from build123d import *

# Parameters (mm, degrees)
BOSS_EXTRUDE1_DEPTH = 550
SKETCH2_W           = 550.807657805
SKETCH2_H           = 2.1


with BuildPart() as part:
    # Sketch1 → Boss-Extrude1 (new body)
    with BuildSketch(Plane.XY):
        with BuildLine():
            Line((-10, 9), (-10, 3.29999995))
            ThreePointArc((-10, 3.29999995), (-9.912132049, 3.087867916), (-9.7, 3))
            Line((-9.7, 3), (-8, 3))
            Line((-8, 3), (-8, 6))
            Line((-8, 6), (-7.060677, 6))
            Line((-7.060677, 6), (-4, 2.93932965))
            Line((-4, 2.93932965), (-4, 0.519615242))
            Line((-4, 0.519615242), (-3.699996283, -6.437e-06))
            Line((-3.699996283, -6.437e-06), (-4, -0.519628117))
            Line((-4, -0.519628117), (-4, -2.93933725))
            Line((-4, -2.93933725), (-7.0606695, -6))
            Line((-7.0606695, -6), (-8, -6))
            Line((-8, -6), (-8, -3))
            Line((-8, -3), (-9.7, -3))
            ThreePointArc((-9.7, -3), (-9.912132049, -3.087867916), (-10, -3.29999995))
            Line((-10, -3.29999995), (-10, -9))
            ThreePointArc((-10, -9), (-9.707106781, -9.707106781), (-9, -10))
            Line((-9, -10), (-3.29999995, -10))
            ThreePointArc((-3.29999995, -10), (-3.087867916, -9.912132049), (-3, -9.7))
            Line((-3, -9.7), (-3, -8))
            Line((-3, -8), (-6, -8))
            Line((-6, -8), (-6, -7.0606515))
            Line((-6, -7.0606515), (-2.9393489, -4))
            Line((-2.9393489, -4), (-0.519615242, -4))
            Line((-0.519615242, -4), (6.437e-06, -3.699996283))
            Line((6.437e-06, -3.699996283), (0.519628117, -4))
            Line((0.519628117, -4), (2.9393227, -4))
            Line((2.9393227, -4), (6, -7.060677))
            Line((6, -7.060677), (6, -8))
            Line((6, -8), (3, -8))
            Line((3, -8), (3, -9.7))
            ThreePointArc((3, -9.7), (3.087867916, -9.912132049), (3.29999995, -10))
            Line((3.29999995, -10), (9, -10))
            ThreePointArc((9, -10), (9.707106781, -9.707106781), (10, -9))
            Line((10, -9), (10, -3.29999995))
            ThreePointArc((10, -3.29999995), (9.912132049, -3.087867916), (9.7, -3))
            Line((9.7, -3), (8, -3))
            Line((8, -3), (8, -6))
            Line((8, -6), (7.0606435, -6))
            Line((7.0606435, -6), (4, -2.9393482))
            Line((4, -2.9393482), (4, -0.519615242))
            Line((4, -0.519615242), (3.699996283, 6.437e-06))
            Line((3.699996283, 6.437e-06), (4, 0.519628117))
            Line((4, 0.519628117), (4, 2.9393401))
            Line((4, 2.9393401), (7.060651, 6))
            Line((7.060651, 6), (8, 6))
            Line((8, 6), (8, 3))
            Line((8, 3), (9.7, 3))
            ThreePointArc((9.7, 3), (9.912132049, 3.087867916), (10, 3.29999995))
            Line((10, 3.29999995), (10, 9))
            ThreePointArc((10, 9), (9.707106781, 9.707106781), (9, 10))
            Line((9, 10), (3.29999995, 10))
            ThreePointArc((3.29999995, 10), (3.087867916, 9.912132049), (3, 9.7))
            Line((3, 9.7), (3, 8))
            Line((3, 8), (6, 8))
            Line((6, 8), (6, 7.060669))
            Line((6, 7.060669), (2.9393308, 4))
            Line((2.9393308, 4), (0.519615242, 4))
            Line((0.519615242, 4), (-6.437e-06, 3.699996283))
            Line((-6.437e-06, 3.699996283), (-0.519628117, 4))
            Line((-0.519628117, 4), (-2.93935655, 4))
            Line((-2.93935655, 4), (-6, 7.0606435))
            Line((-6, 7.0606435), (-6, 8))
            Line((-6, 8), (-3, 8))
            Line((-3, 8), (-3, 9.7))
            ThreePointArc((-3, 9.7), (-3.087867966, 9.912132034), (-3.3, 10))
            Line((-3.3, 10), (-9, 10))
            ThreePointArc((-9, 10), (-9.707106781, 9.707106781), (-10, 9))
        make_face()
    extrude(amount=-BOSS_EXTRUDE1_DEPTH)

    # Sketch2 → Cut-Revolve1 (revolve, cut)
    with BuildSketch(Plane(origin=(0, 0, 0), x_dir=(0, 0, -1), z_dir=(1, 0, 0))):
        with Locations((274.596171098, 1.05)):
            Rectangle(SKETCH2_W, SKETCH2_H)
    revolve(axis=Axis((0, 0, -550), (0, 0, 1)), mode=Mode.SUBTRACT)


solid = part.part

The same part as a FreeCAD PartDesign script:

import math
import FreeCAD as App
import Part
import Sketcher

V = App.Vector
Q = App.Units.Quantity

doc = App.newDocument("Part")
body = doc.addObject("PartDesign::Body", "Body")

# Sketch on XY plane
sketch1 = body.newObject("Sketcher::SketchObject", "Sketch")
sketch1.AttachmentSupport = (doc.getObject("XY_Plane"), [""])
sketch1.MapMode = "FlatFace"
sketch1.addGeometry(Part.LineSegment(V(-10, 9, 0), V(-10, 3.3, 0)), False)
sketch1.addGeometry(Part.ArcOfCircle(Part.Circle(V(-9.7, 3.3, 0), V(0, 0, 1), 0.3), math.radians(180), math.radians(270)), False)
sketch1.addGeometry(Part.LineSegment(V(-9.7, 3, 0), V(-8, 3, 0)), False)
sketch1.addGeometry(Part.LineSegment(V(-8, 3, 0), V(-8, 6, 0)), False)
sketch1.addGeometry(Part.LineSegment(V(-8, 6, 0), V(-7.06, 6, 0)), False)
sketch1.addGeometry(Part.LineSegment(V(-7.06, 6, 0), V(-4, 2.94, 0)), False)
sketch1.addGeometry(Part.LineSegment(V(-4, 2.94, 0), V(-4, 0.52, 0)), False)
sketch1.addGeometry(Part.LineSegment(V(-4, 0.52, 0), V(-3.7, 0, 0)), False)
sketch1.addGeometry(Part.LineSegment(V(-3.7, 0, 0), V(-4, -0.52, 0)), False)
sketch1.addGeometry(Part.LineSegment(V(-4, -0.52, 0), V(-4, -2.94, 0)), False)
sketch1.addGeometry(Part.LineSegment(V(-4, -2.94, 0), V(-7.06, -6, 0)), False)
sketch1.addGeometry(Part.LineSegment(V(-7.06, -6, 0), V(-8, -6, 0)), False)
sketch1.addGeometry(Part.LineSegment(V(-8, -6, 0), V(-8, -3, 0)), False)
sketch1.addGeometry(Part.LineSegment(V(-8, -3, 0), V(-9.7, -3, 0)), False)
sketch1.addGeometry(Part.ArcOfCircle(Part.Circle(V(-9.7, -3.3, 0), V(0, 0, 1), 0.3), math.radians(90), math.radians(180)), False)
sketch1.addGeometry(Part.LineSegment(V(-10, -3.3, 0), V(-10, -9, 0)), False)
sketch1.addGeometry(Part.ArcOfCircle(Part.Circle(V(-9, -9, 0), V(0, 0, 1), 1), math.radians(-180), math.radians(-90)), False)
sketch1.addGeometry(Part.LineSegment(V(-9, -10, 0), V(-3.3, -10, 0)), False)
sketch1.addGeometry(Part.ArcOfCircle(Part.Circle(V(-3.3, -9.7, 0), V(0, 0, 1), 0.3), math.radians(-90), math.radians(0)), False)
sketch1.addGeometry(Part.LineSegment(V(-3, -9.7, 0), V(-3, -8, 0)), False)
sketch1.addGeometry(Part.LineSegment(V(-3, -8, 0), V(-6, -8, 0)), False)
sketch1.addGeometry(Part.LineSegment(V(-6, -8, 0), V(-6, -7.06, 0)), False)
sketch1.addGeometry(Part.LineSegment(V(-6, -7.06, 0), V(-2.94, -4, 0)), False)
sketch1.addGeometry(Part.LineSegment(V(-2.94, -4, 0), V(-0.52, -4, 0)), False)
sketch1.addGeometry(Part.LineSegment(V(-0.52, -4, 0), V(0, -3.7, 0)), False)
sketch1.addGeometry(Part.LineSegment(V(0, -3.7, 0), V(0.52, -4, 0)), False)
sketch1.addGeometry(Part.LineSegment(V(0.52, -4, 0), V(2.94, -4, 0)), False)
sketch1.addGeometry(Part.LineSegment(V(2.94, -4, 0), V(6, -7.06, 0)), False)
sketch1.addGeometry(Part.LineSegment(V(6, -7.06, 0), V(6, -8, 0)), False)
sketch1.addGeometry(Part.LineSegment(V(6, -8, 0), V(3, -8, 0)), False)
sketch1.addGeometry(Part.LineSegment(V(3, -8, 0), V(3, -9.7, 0)), False)
sketch1.addGeometry(Part.ArcOfCircle(Part.Circle(V(3.3, -9.7, 0), V(0, 0, 1), 0.3), math.radians(180), math.radians(270)), False)
sketch1.addGeometry(Part.LineSegment(V(3.3, -10, 0), V(9, -10, 0)), False)
sketch1.addGeometry(Part.ArcOfCircle(Part.Circle(V(9, -9, 0), V(0, 0, 1), 1), math.radians(-90), math.radians(0)), False)
sketch1.addGeometry(Part.LineSegment(V(10, -9, 0), V(10, -3.3, 0)), False)
sketch1.addGeometry(Part.ArcOfCircle(Part.Circle(V(9.7, -3.3, 0), V(0, 0, 1), 0.3), math.radians(0), math.radians(90)), False)
sketch1.addGeometry(Part.LineSegment(V(9.7, -3, 0), V(8, -3, 0)), False)
sketch1.addGeometry(Part.LineSegment(V(8, -3, 0), V(8, -6, 0)), False)
sketch1.addGeometry(Part.LineSegment(V(8, -6, 0), V(7.06, -6, 0)), False)
sketch1.addGeometry(Part.LineSegment(V(7.06, -6, 0), V(4, -2.94, 0)), False)
sketch1.addGeometry(Part.LineSegment(V(4, -2.94, 0), V(4, -0.52, 0)), False)
sketch1.addGeometry(Part.LineSegment(V(4, -0.52, 0), V(3.7, 0, 0)), False)
sketch1.addGeometry(Part.LineSegment(V(3.7, 0, 0), V(4, 0.52, 0)), False)
sketch1.addGeometry(Part.LineSegment(V(4, 0.52, 0), V(4, 2.94, 0)), False)
sketch1.addGeometry(Part.LineSegment(V(4, 2.94, 0), V(7.06, 6, 0)), False)
sketch1.addGeometry(Part.LineSegment(V(7.06, 6, 0), V(8, 6, 0)), False)
sketch1.addGeometry(Part.LineSegment(V(8, 6, 0), V(8, 3, 0)), False)
sketch1.addGeometry(Part.LineSegment(V(8, 3, 0), V(9.7, 3, 0)), False)
sketch1.addGeometry(Part.ArcOfCircle(Part.Circle(V(9.7, 3.3, 0), V(0, 0, 1), 0.3), math.radians(-90), math.radians(0)), False)
sketch1.addGeometry(Part.LineSegment(V(10, 3.3, 0), V(10, 9, 0)), False)
sketch1.addGeometry(Part.ArcOfCircle(Part.Circle(V(9, 9, 0), V(0, 0, 1), 1), math.radians(0), math.radians(90)), False)
sketch1.addGeometry(Part.LineSegment(V(9, 10, 0), V(3.3, 10, 0)), False)
sketch1.addGeometry(Part.ArcOfCircle(Part.Circle(V(3.3, 9.7, 0), V(0, 0, 1), 0.3), math.radians(90), math.radians(180)), False)
sketch1.addGeometry(Part.LineSegment(V(3, 9.7, 0), V(3, 8, 0)), False)
sketch1.addGeometry(Part.LineSegment(V(3, 8, 0), V(6, 8, 0)), False)
sketch1.addGeometry(Part.LineSegment(V(6, 8, 0), V(6, 7.06, 0)), False)
sketch1.addGeometry(Part.LineSegment(V(6, 7.06, 0), V(2.94, 4, 0)), False)
sketch1.addGeometry(Part.LineSegment(V(2.94, 4, 0), V(0.52, 4, 0)), False)
sketch1.addGeometry(Part.LineSegment(V(0.52, 4, 0), V(0, 3.7, 0)), False)
sketch1.addGeometry(Part.LineSegment(V(0, 3.7, 0), V(-0.52, 4, 0)), False)
sketch1.addGeometry(Part.LineSegment(V(-0.52, 4, 0), V(-2.94, 4, 0)), False)
sketch1.addGeometry(Part.LineSegment(V(-2.94, 4, 0), V(-6, 7.06, 0)), False)
sketch1.addGeometry(Part.LineSegment(V(-6, 7.06, 0), V(-6, 8, 0)), False)
sketch1.addGeometry(Part.LineSegment(V(-6, 8, 0), V(-3, 8, 0)), False)
sketch1.addGeometry(Part.LineSegment(V(-3, 8, 0), V(-3, 9.7, 0)), False)
sketch1.addGeometry(Part.ArcOfCircle(Part.Circle(V(-3.3, 9.7, 0), V(0, 0, 1), 0.3), math.radians(0), math.radians(90)), False)
sketch1.addGeometry(Part.LineSegment(V(-3.3, 10, 0), V(-9, 10, 0)), False)
sketch1.addGeometry(Part.ArcOfCircle(Part.Circle(V(-9, 9, 0), V(0, 0, 1), 1), math.radians(90), math.radians(180)), False)
sketch1.addConstraint(Sketcher.Constraint("Tangent", 0, 2, 1, 1))
sketch1.addConstraint(Sketcher.Constraint("Tangent", 1, 2, 2, 1))
sketch1.addConstraint(Sketcher.Constraint("Coincident", 2, 2, 3, 1))
sketch1.addConstraint(Sketcher.Constraint("Coincident", 3, 2, 4, 1))
sketch1.addConstraint(Sketcher.Constraint("Coincident", 4, 2, 5, 1))
sketch1.addConstraint(Sketcher.Constraint("Coincident", 5, 2, 6, 1))
sketch1.addConstraint(Sketcher.Constraint("Coincident", 6, 2, 7, 1))
sketch1.addConstraint(Sketcher.Constraint("Coincident", 7, 2, 8, 1))
sketch1.addConstraint(Sketcher.Constraint("Coincident", 8, 2, 9, 1))
sketch1.addConstraint(Sketcher.Constraint("Coincident", 9, 2, 10, 1))
sketch1.addConstraint(Sketcher.Constraint("Coincident", 10, 2, 11, 1))
sketch1.addConstraint(Sketcher.Constraint("Coincident", 11, 2, 12, 1))
sketch1.addConstraint(Sketcher.Constraint("Coincident", 12, 2, 13, 1))
sketch1.addConstraint(Sketcher.Constraint("Tangent", 13, 2, 14, 1))
sketch1.addConstraint(Sketcher.Constraint("Tangent", 14, 2, 15, 1))
sketch1.addConstraint(Sketcher.Constraint("Tangent", 15, 2, 16, 1))
sketch1.addConstraint(Sketcher.Constraint("Tangent", 16, 2, 17, 1))
sketch1.addConstraint(Sketcher.Constraint("Tangent", 17, 2, 18, 1))
sketch1.addConstraint(Sketcher.Constraint("Tangent", 18, 2, 19, 1))
sketch1.addConstraint(Sketcher.Constraint("Coincident", 19, 2, 20, 1))
sketch1.addConstraint(Sketcher.Constraint("Coincident", 20, 2, 21, 1))
sketch1.addConstraint(Sketcher.Constraint("Coincident", 21, 2, 22, 1))
sketch1.addConstraint(Sketcher.Constraint("Coincident", 22, 2, 23, 1))
sketch1.addConstraint(Sketcher.Constraint("Coincident", 23, 2, 24, 1))
sketch1.addConstraint(Sketcher.Constraint("Coincident", 24, 2, 25, 1))
sketch1.addConstraint(Sketcher.Constraint("Coincident", 25, 2, 26, 1))
sketch1.addConstraint(Sketcher.Constraint("Coincident", 26, 2, 27, 1))
sketch1.addConstraint(Sketcher.Constraint("Coincident", 27, 2, 28, 1))
sketch1.addConstraint(Sketcher.Constraint("Coincident", 28, 2, 29, 1))
sketch1.addConstraint(Sketcher.Constraint("Coincident", 29, 2, 30, 1))
sketch1.addConstraint(Sketcher.Constraint("Tangent", 30, 2, 31, 1))
sketch1.addConstraint(Sketcher.Constraint("Tangent", 31, 2, 32, 1))
sketch1.addConstraint(Sketcher.Constraint("Tangent", 32, 2, 33, 1))
sketch1.addConstraint(Sketcher.Constraint("Tangent", 33, 2, 34, 1))
sketch1.addConstraint(Sketcher.Constraint("Tangent", 34, 2, 35, 1))
sketch1.addConstraint(Sketcher.Constraint("Tangent", 35, 2, 36, 1))
sketch1.addConstraint(Sketcher.Constraint("Coincident", 36, 2, 37, 1))
sketch1.addConstraint(Sketcher.Constraint("Coincident", 37, 2, 38, 1))
sketch1.addConstraint(Sketcher.Constraint("Coincident", 38, 2, 39, 1))
sketch1.addConstraint(Sketcher.Constraint("Coincident", 39, 2, 40, 1))
sketch1.addConstraint(Sketcher.Constraint("Coincident", 40, 2, 41, 1))
sketch1.addConstraint(Sketcher.Constraint("Coincident", 41, 2, 42, 1))
sketch1.addConstraint(Sketcher.Constraint("Coincident", 42, 2, 43, 1))
sketch1.addConstraint(Sketcher.Constraint("Coincident", 43, 2, 44, 1))
sketch1.addConstraint(Sketcher.Constraint("Coincident", 44, 2, 45, 1))
sketch1.addConstraint(Sketcher.Constraint("Coincident", 45, 2, 46, 1))
sketch1.addConstraint(Sketcher.Constraint("Coincident", 46, 2, 47, 1))
sketch1.addConstraint(Sketcher.Constraint("Tangent", 47, 2, 48, 1))
sketch1.addConstraint(Sketcher.Constraint("Tangent", 48, 2, 49, 1))
sketch1.addConstraint(Sketcher.Constraint("Tangent", 49, 2, 50, 1))
sketch1.addConstraint(Sketcher.Constraint("Tangent", 50, 2, 51, 1))
sketch1.addConstraint(Sketcher.Constraint("Tangent", 51, 2, 52, 1))
sketch1.addConstraint(Sketcher.Constraint("Tangent", 52, 2, 53, 1))
sketch1.addConstraint(Sketcher.Constraint("Coincident", 53, 2, 54, 1))
sketch1.addConstraint(Sketcher.Constraint("Coincident", 54, 2, 55, 1))
sketch1.addConstraint(Sketcher.Constraint("Coincident", 55, 2, 56, 1))
sketch1.addConstraint(Sketcher.Constraint("Coincident", 56, 2, 57, 1))
sketch1.addConstraint(Sketcher.Constraint("Coincident", 57, 2, 58, 1))
sketch1.addConstraint(Sketcher.Constraint("Coincident", 58, 2, 59, 1))
sketch1.addConstraint(Sketcher.Constraint("Coincident", 59, 2, 60, 1))
sketch1.addConstraint(Sketcher.Constraint("Coincident", 60, 2, 61, 1))
sketch1.addConstraint(Sketcher.Constraint("Coincident", 61, 2, 62, 1))
sketch1.addConstraint(Sketcher.Constraint("Coincident", 62, 2, 63, 1))
sketch1.addConstraint(Sketcher.Constraint("Coincident", 63, 2, 64, 1))
sketch1.addConstraint(Sketcher.Constraint("Tangent", 64, 2, 65, 1))
sketch1.addConstraint(Sketcher.Constraint("Tangent", 65, 2, 66, 1))
sketch1.addConstraint(Sketcher.Constraint("Tangent", 66, 2, 67, 1))
sketch1.addConstraint(Sketcher.Constraint("Tangent", 67, 2, 0, 1))
sketch1.addConstraint(Sketcher.Constraint("Vertical", 0))
sketch1.addConstraint(Sketcher.Constraint("Horizontal", 2))
sketch1.addConstraint(Sketcher.Constraint("Vertical", 3))
sketch1.addConstraint(Sketcher.Constraint("Horizontal", 4))
sketch1.addConstraint(Sketcher.Constraint("Vertical", 6))
sketch1.addConstraint(Sketcher.Constraint("Vertical", 9))
sketch1.addConstraint(Sketcher.Constraint("Horizontal", 11))
sketch1.addConstraint(Sketcher.Constraint("Vertical", 12))
sketch1.addConstraint(Sketcher.Constraint("Horizontal", 13))
sketch1.addConstraint(Sketcher.Constraint("Vertical", 15))
sketch1.addConstraint(Sketcher.Constraint("Horizontal", 17))
sketch1.addConstraint(Sketcher.Constraint("Vertical", 19))
sketch1.addConstraint(Sketcher.Constraint("Horizontal", 20))
sketch1.addConstraint(Sketcher.Constraint("Vertical", 21))
sketch1.addConstraint(Sketcher.Constraint("Horizontal", 23))
sketch1.addConstraint(Sketcher.Constraint("Horizontal", 26))
sketch1.addConstraint(Sketcher.Constraint("Vertical", 28))
sketch1.addConstraint(Sketcher.Constraint("Horizontal", 29))
sketch1.addConstraint(Sketcher.Constraint("Vertical", 30))
sketch1.addConstraint(Sketcher.Constraint("Horizontal", 32))
sketch1.addConstraint(Sketcher.Constraint("Vertical", 34))
sketch1.addConstraint(Sketcher.Constraint("Horizontal", 36))
sketch1.addConstraint(Sketcher.Constraint("Vertical", 37))
sketch1.addConstraint(Sketcher.Constraint("Horizontal", 38))
sketch1.addConstraint(Sketcher.Constraint("Vertical", 40))
sketch1.addConstraint(Sketcher.Constraint("Vertical", 43))
sketch1.addConstraint(Sketcher.Constraint("Horizontal", 45))
sketch1.addConstraint(Sketcher.Constraint("Vertical", 46))
sketch1.addConstraint(Sketcher.Constraint("Horizontal", 47))
sketch1.addConstraint(Sketcher.Constraint("Vertical", 49))
sketch1.addConstraint(Sketcher.Constraint("Horizontal", 51))
sketch1.addConstraint(Sketcher.Constraint("Vertical", 53))
sketch1.addConstraint(Sketcher.Constraint("Horizontal", 54))
sketch1.addConstraint(Sketcher.Constraint("Vertical", 55))
sketch1.addConstraint(Sketcher.Constraint("Horizontal", 57))
sketch1.addConstraint(Sketcher.Constraint("Horizontal", 60))
sketch1.addConstraint(Sketcher.Constraint("Vertical", 62))
sketch1.addConstraint(Sketcher.Constraint("Horizontal", 63))
sketch1.addConstraint(Sketcher.Constraint("Vertical", 64))
sketch1.addConstraint(Sketcher.Constraint("Horizontal", 66))
sketch1.addConstraint(Sketcher.Constraint("Equal", 1, 14))
sketch1.addConstraint(Sketcher.Constraint("Equal", 14, 18))
sketch1.addConstraint(Sketcher.Constraint("Equal", 18, 31))
sketch1.addConstraint(Sketcher.Constraint("Equal", 16, 33))
sketch1.addConstraint(Sketcher.Constraint("Equal", 31, 35))
sketch1.addConstraint(Sketcher.Constraint("Equal", 35, 48))
sketch1.addConstraint(Sketcher.Constraint("Equal", 33, 50))
sketch1.addConstraint(Sketcher.Constraint("Equal", 48, 52))
sketch1.addConstraint(Sketcher.Constraint("Equal", 52, 65))
sketch1.addConstraint(Sketcher.Constraint("Equal", 50, 67))
sketch1.addConstraint(Sketcher.Constraint("Symmetric", 1, 3, 35, 3, -1, 1))
sketch1.addConstraint(Sketcher.Constraint("Symmetric", 14, 3, 48, 3, -1, 1))
sketch1.addConstraint(Sketcher.Constraint("Symmetric", 18, 3, 52, 3, -1, 1))
sketch1.addConstraint(Sketcher.Constraint("Symmetric", 31, 3, 65, 3, -1, 1))
sketch1.addConstraint(Sketcher.Constraint("Symmetric", 3, 2, 37, 2, -1, 1))
sketch1.addConstraint(Sketcher.Constraint("Symmetric", 6, 2, 40, 2, -1, 1))
sketch1.addConstraint(Sketcher.Constraint("Symmetric", 7, 2, 41, 2, -1, 1))
sketch1.addConstraint(Sketcher.Constraint("Symmetric", 8, 2, 42, 2, -1, 1))
sketch1.addConstraint(Sketcher.Constraint("Symmetric", 11, 2, 45, 2, -1, 1))
sketch1.addConstraint(Sketcher.Constraint("Symmetric", 20, 2, 54, 2, -1, 1))
sketch1.addConstraint(Sketcher.Constraint("Symmetric", 23, 2, 57, 2, -1, 1))
sketch1.addConstraint(Sketcher.Constraint("Symmetric", 24, 2, 58, 2, -1, 1))
sketch1.addConstraint(Sketcher.Constraint("Symmetric", 25, 2, 59, 2, -1, 1))
sketch1.addConstraint(Sketcher.Constraint("Symmetric", 28, 2, 62, 2, -1, 1))
sketch1.addConstraint(Sketcher.Constraint("Symmetric", 18, 3, 31, 3, -2))
sketch1.addConstraint(Sketcher.Constraint("Symmetric", 14, 3, 35, 3, -2))
sketch1.addConstraint(Sketcher.Constraint("Symmetric", 20, 2, 28, 2, -2))
sketch1.addConstraint(Sketcher.Constraint("Symmetric", 11, 2, 37, 2, -2))
sketch1.addConstraint(Sketcher.Constraint("Symmetric", 5, 2, 9, 2, -1))
sketch1.addConstraint(Sketcher.Constraint("Symmetric", 26, 2, 56, 2, -1))
sketch1.addConstraint(Sketcher.Constraint("Parallel", 10, 22))
sketch1.addConstraint(Sketcher.Constraint("Perpendicular", 7, 24))
sketch1.addConstraint(Sketcher.Constraint("Perpendicular", 8, 25))
sketch1.addConstraint(Sketcher.Constraint("Perpendicular", 22, 27))
sketch1.addConstraint(Sketcher.Constraint("Parallel", 27, 39))
sketch1.addConstraint(Sketcher.Constraint("Perpendicular", 27, 44))
sketch1.addConstraint(Sketcher.Constraint("Parallel", 44, 56))
sketch1.addConstraint(Sketcher.Constraint("Perpendicular", 56, 61))
sketch1.addConstraint(Sketcher.Constraint("Equal", 66, 0))
sketch1.addConstraint(Sketcher.Constraint("Equal", 63, 3))
sketch1.addConstraint(Sketcher.Constraint("Equal", 57, 6))
sketch1.addConstraint(Sketcher.Constraint("Equal", 47, 19))
sketch1.addConstraint(Sketcher.Constraint("Equal", 45, 21))
sketch1.addConstraint(Sketcher.Constraint("Equal", 4, 28))
sketch1.addConstraint(Sketcher.Constraint("Equal", 23, 40))
sketch1.addConstraint(Sketcher.Constraint("Equal", 11, 55))
sketch1.addConstraint(Sketcher.Constraint("Equal", 38, 62))
sketch1.addConstraint(Sketcher.Constraint("Equal", 7, 8))
sketch1.addConstraint(Sketcher.Constraint("Equal", 8, 24))
sketch1.addConstraint(Sketcher.Constraint("Radius", 16, Q("1 mm")))
sketch1.addConstraint(Sketcher.Constraint("Radius", 1, Q("0.3 mm")))
sketch1.addConstraint(Sketcher.Constraint("DistanceX", 20, 2, 20, 1, Q("3 mm")))
sketch1.addConstraint(Sketcher.Constraint("Angle", 7, Q("-60 deg")))
sketch1.addConstraint(Sketcher.Constraint("Angle", 22, Q("45.000004 deg")))
sketch1.addConstraint(Sketcher.Constraint("DistanceX", 2, 1, 2, 2, Q("1.7 mm")))
sketch1.addConstraint(Sketcher.Constraint("DistanceX", 17, 1, 17, 2, Q("5.7 mm")))
sketch1.addConstraint(Sketcher.Constraint("DistanceX", 16, 3, -1, 1, Q("9 mm")))
sketch1.addConstraint(Sketcher.Constraint("DistanceY", 16, 3, -1, 1, Q("9 mm")))
sketch1.addConstraint(Sketcher.Constraint("DistanceX", 5, 2, -1, 1, Q("4 mm")))
sketch1.addConstraint(Sketcher.Constraint("DistanceY", 22, 2, -1, 1, Q("4 mm")))
sketch1.addConstraint(Sketcher.Constraint("DistanceX", 11, 2, 11, 1, Q("0.93933 mm")))
sketch1.addConstraint(Sketcher.Constraint("DistanceX", 45, 1, 45, 2, Q("0.939349 mm")))
sketch1.addConstraint(Sketcher.Constraint("DistanceX", 60, 2, 60, 1, Q("2.419728 mm")))
sketch1.addConstraint(Sketcher.Constraint("DistanceX", 23, 1, 23, 2, Q("2.419734 mm")))
pad1 = body.newObject("PartDesign::Pad", "Pad")
pad1.Profile = sketch1
pad1.Length = 550
pad1.Reversed = True

# Sketch on YZ plane
sketch2 = body.newObject("Sketcher::SketchObject", "Sketch001")
sketch2.AttachmentSupport = (doc.getObject("YZ_Plane"), [""])
sketch2.MapMode = "FlatFace"
sketch2.addGeometry(Part.LineSegment(V(2.1, 0.8, 0), V(0, 0.8, 0)), False)
sketch2.addGeometry(Part.LineSegment(V(0, 0.8, 0), V(0, -550, 0)), False)
sketch2.addGeometry(Part.LineSegment(V(0, -550, 0), V(2.1, -550, 0)), False)
sketch2.addGeometry(Part.LineSegment(V(2.1, -550, 0), V(2.1, 0.8, 0)), False)
sketch2.addConstraint(Sketcher.Constraint("Coincident", 0, 2, 1, 1))
sketch2.addConstraint(Sketcher.Constraint("Coincident", 1, 2, 2, 1))
sketch2.addConstraint(Sketcher.Constraint("Coincident", 2, 2, 3, 1))
sketch2.addConstraint(Sketcher.Constraint("Coincident", 3, 2, 0, 1))
sketch2.addConstraint(Sketcher.Constraint("Horizontal", 0))
sketch2.addConstraint(Sketcher.Constraint("Vertical", 1))
sketch2.addConstraint(Sketcher.Constraint("Horizontal", 2))
sketch2.addConstraint(Sketcher.Constraint("Vertical", 3))
sketch2.addConstraint(Sketcher.Constraint("PointOnObject", 0, 2, -2))
sketch2.addConstraint(Sketcher.Constraint("DistanceX", 0, 2, 0, 1, Q("2.1 mm")))
sketch2.addConstraint(Sketcher.Constraint("DistanceY", 1, 2, -1, 1, Q("550 mm")))
sketch2.addConstraint(Sketcher.Constraint("DistanceY", 1, 2, 1, 1, Q("550.807658 mm")))
groove = body.newObject("PartDesign::Groove", "Groove")
groove.Profile = sketch2
groove.ReferenceAxis = (sketch2, ["V_Axis"])
groove.Angle = 360

doc.recompute()
